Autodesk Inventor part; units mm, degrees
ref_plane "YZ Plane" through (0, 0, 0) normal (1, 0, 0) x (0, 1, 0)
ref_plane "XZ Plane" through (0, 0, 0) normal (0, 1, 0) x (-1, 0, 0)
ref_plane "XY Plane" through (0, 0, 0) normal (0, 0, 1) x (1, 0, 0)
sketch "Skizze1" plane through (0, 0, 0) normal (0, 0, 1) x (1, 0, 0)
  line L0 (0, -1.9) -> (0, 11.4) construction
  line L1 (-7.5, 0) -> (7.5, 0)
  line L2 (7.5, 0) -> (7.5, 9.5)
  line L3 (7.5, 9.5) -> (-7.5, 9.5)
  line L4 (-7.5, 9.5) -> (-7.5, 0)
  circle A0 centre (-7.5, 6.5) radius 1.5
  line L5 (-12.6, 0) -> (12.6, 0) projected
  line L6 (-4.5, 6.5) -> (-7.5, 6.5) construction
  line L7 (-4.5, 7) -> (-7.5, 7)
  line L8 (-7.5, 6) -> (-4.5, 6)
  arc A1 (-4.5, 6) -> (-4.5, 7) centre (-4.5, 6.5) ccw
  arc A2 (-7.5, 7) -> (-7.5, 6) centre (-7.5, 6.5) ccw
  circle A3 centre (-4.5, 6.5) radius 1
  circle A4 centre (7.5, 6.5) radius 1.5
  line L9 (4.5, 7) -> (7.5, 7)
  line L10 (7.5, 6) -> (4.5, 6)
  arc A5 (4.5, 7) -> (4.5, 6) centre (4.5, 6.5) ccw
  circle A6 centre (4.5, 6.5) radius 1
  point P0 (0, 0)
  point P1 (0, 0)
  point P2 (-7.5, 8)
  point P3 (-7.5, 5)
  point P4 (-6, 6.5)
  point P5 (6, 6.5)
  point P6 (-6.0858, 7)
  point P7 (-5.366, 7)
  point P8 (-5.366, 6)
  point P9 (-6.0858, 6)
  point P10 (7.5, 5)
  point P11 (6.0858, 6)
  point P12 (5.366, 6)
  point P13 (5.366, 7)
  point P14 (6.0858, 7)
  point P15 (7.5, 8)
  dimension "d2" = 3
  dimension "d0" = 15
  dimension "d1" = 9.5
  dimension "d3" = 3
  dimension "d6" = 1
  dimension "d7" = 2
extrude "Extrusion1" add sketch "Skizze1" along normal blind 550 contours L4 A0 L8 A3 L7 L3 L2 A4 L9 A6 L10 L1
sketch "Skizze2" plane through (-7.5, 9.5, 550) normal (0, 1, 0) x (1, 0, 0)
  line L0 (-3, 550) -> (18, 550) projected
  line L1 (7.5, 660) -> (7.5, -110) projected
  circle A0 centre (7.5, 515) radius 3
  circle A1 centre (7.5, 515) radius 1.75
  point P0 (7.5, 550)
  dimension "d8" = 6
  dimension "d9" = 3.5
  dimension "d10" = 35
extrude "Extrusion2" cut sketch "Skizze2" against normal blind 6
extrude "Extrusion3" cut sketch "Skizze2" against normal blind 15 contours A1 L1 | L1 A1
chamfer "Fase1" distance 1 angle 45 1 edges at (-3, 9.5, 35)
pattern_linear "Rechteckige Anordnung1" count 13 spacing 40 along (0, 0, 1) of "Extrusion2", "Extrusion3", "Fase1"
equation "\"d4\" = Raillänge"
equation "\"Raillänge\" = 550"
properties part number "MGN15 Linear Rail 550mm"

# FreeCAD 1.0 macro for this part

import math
import FreeCAD as App
import Part
import Sketcher
Q = App.Units.Quantity


def edges_at(feature, points):
    """Names of the edges that pass closest to the given points."""
    edges = feature.Shape.Edges
    near = lambda p: min(range(len(edges)), key=lambda i: edges[i].distToShape(Part.Vertex(*p))[0])
    return sorted({f"Edge{near(p) + 1}" for p in points})

doc = App.newDocument("Part")
body = doc.addObject("PartDesign::Body", "Body")

# Sketch on XY plane
sketch1 = body.newObject("Sketcher::SketchObject", "Sketch")
sketch1.AttachmentSupport = (doc.getObject("XY_Plane"), [""])
sketch1.MapMode = "FlatFace"
sketch1.addGeometry([
    Part.LineSegment(App.Vector(-7.5, 5, 0), App.Vector(-7.5, 0, 0)),  # 0
    Part.LineSegment(App.Vector(-7.5, 0, 0), App.Vector(7.5, 0, 0)),  # 1
    Part.LineSegment(App.Vector(7.5, 0, 0), App.Vector(7.5, 5, 0)),  # 2
    Part.ArcOfCircle(Part.Circle(App.Vector(7.5, 6.5, 0), App.Vector(0, 0, 1), 1.5), math.radians(-161), math.radians(-90)),  # 3
    Part.LineSegment(App.Vector(6.1, 6, 0), App.Vector(5.4, 6, 0)),  # 4
    Part.ArcOfCircle(Part.Circle(App.Vector(4.5, 6.5, 0), App.Vector(0, 0, 1), 1), math.radians(30), math.radians(330)),  # 5
    Part.LineSegment(App.Vector(5.4, 7, 0), App.Vector(6.1, 7, 0)),  # 6
    Part.ArcOfCircle(Part.Circle(App.Vector(7.5, 6.5, 0), App.Vector(0, 0, 1), 1.5), math.radians(90), math.radians(161)),  # 7
    Part.LineSegment(App.Vector(7.5, 8, 0), App.Vector(7.5, 9.5, 0)),  # 8
    Part.LineSegment(App.Vector(7.5, 9.5, 0), App.Vector(-7.5, 9.5, 0)),  # 9
    Part.LineSegment(App.Vector(-7.5, 9.5, 0), App.Vector(-7.5, 8, 0)),  # 10
    Part.ArcOfCircle(Part.Circle(App.Vector(-7.5, 6.5, 0), App.Vector(0, 0, 1), 1.5), math.radians(19), math.radians(90)),  # 11
    Part.LineSegment(App.Vector(-6.1, 7, 0), App.Vector(-5.4, 7, 0)),  # 12
    Part.ArcOfCircle(Part.Circle(App.Vector(-4.5, 6.5, 0), App.Vector(0, 0, 1), 1), math.radians(-150), math.radians(150)),  # 13
    Part.LineSegment(App.Vector(-5.4, 6, 0), App.Vector(-6.1, 6, 0)),  # 14
    Part.ArcOfCircle(Part.Circle(App.Vector(-7.5, 6.5, 0), App.Vector(0, 0, 1), 1.5), math.radians(-90), math.radians(-19)),  # 15
], False)
sketch1.addConstraint([
    Sketcher.Constraint("Coincident", 0, 2, 1, 1),
    Sketcher.Constraint("Coincident", 1, 2, 2, 1),
    Sketcher.Constraint("Coincident", 2, 2, 3, 2),
    Sketcher.Constraint("Coincident", 3, 1, 4, 1),
    Sketcher.Constraint("Coincident", 4, 2, 5, 2),
    Sketcher.Constraint("Coincident", 5, 1, 6, 1),
    Sketcher.Constraint("Coincident", 6, 2, 7, 2),
    Sketcher.Constraint("Coincident", 7, 1, 8, 1),
    Sketcher.Constraint("Coincident", 8, 2, 9, 1),
    Sketcher.Constraint("Coincident", 9, 2, 10, 1),
    Sketcher.Constraint("Coincident", 10, 2, 11, 2),
    Sketcher.Constraint("Coincident", 11, 1, 12, 1),
    Sketcher.Constraint("Coincident", 12, 2, 13, 2),
    Sketcher.Constraint("Coincident", 13, 1, 14, 1),
    Sketcher.Constraint("Coincident", 14, 2, 15, 2),
    Sketcher.Constraint("Coincident", 15, 1, 0, 1),
    Sketcher.Constraint("Vertical", 0),
    Sketcher.Constraint("Horizontal", 1),
    Sketcher.Constraint("Vertical", 2),
    Sketcher.Constraint("Horizontal", 4),
    Sketcher.Constraint("Horizontal", 6),
    Sketcher.Constraint("Vertical", 8),
    Sketcher.Constraint("Horizontal", 9),
    Sketcher.Constraint("Vertical", 10),
    Sketcher.Constraint("Horizontal", 12),
    Sketcher.Constraint("Horizontal", 14),
    Sketcher.Constraint("Coincident", 7, 3, 3, 3),
    Sketcher.Constraint("Coincident", 15, 3, 11, 3),
    Sketcher.Constraint("Equal", 3, 7),
    Sketcher.Constraint("Equal", 7, 11),
    Sketcher.Constraint("Equal", 5, 13),
    Sketcher.Constraint("Equal", 11, 15),
    Sketcher.Constraint("Symmetric", 0, 2, 1, 2, -1, 1),
    Sketcher.Constraint("Symmetric", 3, 3, 11, 3, -2),
    Sketcher.Constraint("Symmetric", 5, 3, 13, 3, -2),
    Sketcher.Constraint("Horizontal", 3, 3, 5, 3),
    Sketcher.Constraint("Horizontal", 6, 2, 11, 1),
    Sketcher.Constraint("Horizontal", 4, 2, 13, 1),
    Sketcher.Constraint("Vertical", 15, 3, 0, 2),
    Sketcher.Constraint("Vertical", 4, 2, 5, 1),
    Sketcher.Constraint("Vertical", 2, 2, 7, 1),
    Sketcher.Constraint("Vertical", 0, 2, 9, 2),
    Sketcher.Constraint("Radius", 5, Q("1 mm")),
    Sketcher.Constraint("Radius", 3, Q("1.5 mm")),
    Sketcher.Constraint("DistanceX", 1, 1, 1, 2, Q("15 mm")),
    Sketcher.Constraint("DistanceX", 5, 3, 3, 3, Q("3 mm")),
    Sketcher.Constraint("DistanceY", 2, 2, 3, 1, Q("1 mm")),
    Sketcher.Constraint("DistanceY", 3, 3, 8, 2, Q("3 mm")),
    Sketcher.Constraint("DistanceY", -1, 1, 8, 2, Q("9.5 mm")),
])
pad1 = body.newObject("PartDesign::Pad", "Pad")
pad1.Profile = sketch1
pad1.Length = 550

# Sketch on XZ plane
sketch2 = body.newObject("Sketcher::SketchObject", "Sketch001")
sketch2.AttachmentSupport = (doc.getObject("XZ_Plane"), [""])
sketch2.MapMode = "FlatFace"
sketch2.AttachmentOffset = App.Placement(App.Vector(0, 0, -9.5), App.Rotation())
sketch2.addGeometry(Part.Circle(App.Vector(0, 35, 0), App.Vector(0, 0, 1), 3), False)
sketch2.addConstraint([
    Sketcher.Constraint("PointOnObject", 0, 3, -2),
    Sketcher.Constraint("Diameter", 0, Q("6 mm")),
    Sketcher.Constraint("DistanceY", -1, 1, 0, 3, Q("35 mm")),
])
pocket1 = body.newObject("PartDesign::Pocket", "Pocket")
pocket1.Profile = sketch2
pocket1.Length = 6
pocket1.Reversed = True

# Sketch on XZ plane
sketch3 = body.newObject("Sketcher::SketchObject", "Sketch002")
sketch3.AttachmentSupport = (doc.getObject("XZ_Plane"), [""])
sketch3.MapMode = "FlatFace"
sketch3.AttachmentOffset = App.Placement(App.Vector(0, 0, -9.5), App.Rotation())
sketch3.addGeometry(Part.Circle(App.Vector(0, 35, 0), App.Vector(0, 0, 1), 1.8), False)
sketch3.addConstraint([
    Sketcher.Constraint("PointOnObject", 0, 3, -2),
    Sketcher.Constraint("Diameter", 0, Q("3.5 mm")),
    Sketcher.Constraint("DistanceY", -1, 1, 0, 3, Q("35 mm")),
])
pocket2 = body.newObject("PartDesign::Pocket", "Pocket001")
pocket2.Profile = sketch3
pocket2.Length = 15
pocket2.Reversed = True
doc.recompute()

chamfer = body.newObject("PartDesign::Chamfer", "Chamfer")
chamfer.Base = (pocket2, edges_at(pocket2, [(-3, 9.5, 35)]))
chamfer.Size = 1
doc.recompute()

linearpattern = body.newObject("PartDesign::LinearPattern", "LinearPattern")
linearpattern.Originals = [pocket1, pocket2, chamfer]
linearpattern.Direction = (doc.getObject("Z_Axis"), [""])
linearpattern.Mode = "offset"
linearpattern.Offset = 40
linearpattern.Occurrences = 13
body.Tip = linearpattern

doc.recompute()
